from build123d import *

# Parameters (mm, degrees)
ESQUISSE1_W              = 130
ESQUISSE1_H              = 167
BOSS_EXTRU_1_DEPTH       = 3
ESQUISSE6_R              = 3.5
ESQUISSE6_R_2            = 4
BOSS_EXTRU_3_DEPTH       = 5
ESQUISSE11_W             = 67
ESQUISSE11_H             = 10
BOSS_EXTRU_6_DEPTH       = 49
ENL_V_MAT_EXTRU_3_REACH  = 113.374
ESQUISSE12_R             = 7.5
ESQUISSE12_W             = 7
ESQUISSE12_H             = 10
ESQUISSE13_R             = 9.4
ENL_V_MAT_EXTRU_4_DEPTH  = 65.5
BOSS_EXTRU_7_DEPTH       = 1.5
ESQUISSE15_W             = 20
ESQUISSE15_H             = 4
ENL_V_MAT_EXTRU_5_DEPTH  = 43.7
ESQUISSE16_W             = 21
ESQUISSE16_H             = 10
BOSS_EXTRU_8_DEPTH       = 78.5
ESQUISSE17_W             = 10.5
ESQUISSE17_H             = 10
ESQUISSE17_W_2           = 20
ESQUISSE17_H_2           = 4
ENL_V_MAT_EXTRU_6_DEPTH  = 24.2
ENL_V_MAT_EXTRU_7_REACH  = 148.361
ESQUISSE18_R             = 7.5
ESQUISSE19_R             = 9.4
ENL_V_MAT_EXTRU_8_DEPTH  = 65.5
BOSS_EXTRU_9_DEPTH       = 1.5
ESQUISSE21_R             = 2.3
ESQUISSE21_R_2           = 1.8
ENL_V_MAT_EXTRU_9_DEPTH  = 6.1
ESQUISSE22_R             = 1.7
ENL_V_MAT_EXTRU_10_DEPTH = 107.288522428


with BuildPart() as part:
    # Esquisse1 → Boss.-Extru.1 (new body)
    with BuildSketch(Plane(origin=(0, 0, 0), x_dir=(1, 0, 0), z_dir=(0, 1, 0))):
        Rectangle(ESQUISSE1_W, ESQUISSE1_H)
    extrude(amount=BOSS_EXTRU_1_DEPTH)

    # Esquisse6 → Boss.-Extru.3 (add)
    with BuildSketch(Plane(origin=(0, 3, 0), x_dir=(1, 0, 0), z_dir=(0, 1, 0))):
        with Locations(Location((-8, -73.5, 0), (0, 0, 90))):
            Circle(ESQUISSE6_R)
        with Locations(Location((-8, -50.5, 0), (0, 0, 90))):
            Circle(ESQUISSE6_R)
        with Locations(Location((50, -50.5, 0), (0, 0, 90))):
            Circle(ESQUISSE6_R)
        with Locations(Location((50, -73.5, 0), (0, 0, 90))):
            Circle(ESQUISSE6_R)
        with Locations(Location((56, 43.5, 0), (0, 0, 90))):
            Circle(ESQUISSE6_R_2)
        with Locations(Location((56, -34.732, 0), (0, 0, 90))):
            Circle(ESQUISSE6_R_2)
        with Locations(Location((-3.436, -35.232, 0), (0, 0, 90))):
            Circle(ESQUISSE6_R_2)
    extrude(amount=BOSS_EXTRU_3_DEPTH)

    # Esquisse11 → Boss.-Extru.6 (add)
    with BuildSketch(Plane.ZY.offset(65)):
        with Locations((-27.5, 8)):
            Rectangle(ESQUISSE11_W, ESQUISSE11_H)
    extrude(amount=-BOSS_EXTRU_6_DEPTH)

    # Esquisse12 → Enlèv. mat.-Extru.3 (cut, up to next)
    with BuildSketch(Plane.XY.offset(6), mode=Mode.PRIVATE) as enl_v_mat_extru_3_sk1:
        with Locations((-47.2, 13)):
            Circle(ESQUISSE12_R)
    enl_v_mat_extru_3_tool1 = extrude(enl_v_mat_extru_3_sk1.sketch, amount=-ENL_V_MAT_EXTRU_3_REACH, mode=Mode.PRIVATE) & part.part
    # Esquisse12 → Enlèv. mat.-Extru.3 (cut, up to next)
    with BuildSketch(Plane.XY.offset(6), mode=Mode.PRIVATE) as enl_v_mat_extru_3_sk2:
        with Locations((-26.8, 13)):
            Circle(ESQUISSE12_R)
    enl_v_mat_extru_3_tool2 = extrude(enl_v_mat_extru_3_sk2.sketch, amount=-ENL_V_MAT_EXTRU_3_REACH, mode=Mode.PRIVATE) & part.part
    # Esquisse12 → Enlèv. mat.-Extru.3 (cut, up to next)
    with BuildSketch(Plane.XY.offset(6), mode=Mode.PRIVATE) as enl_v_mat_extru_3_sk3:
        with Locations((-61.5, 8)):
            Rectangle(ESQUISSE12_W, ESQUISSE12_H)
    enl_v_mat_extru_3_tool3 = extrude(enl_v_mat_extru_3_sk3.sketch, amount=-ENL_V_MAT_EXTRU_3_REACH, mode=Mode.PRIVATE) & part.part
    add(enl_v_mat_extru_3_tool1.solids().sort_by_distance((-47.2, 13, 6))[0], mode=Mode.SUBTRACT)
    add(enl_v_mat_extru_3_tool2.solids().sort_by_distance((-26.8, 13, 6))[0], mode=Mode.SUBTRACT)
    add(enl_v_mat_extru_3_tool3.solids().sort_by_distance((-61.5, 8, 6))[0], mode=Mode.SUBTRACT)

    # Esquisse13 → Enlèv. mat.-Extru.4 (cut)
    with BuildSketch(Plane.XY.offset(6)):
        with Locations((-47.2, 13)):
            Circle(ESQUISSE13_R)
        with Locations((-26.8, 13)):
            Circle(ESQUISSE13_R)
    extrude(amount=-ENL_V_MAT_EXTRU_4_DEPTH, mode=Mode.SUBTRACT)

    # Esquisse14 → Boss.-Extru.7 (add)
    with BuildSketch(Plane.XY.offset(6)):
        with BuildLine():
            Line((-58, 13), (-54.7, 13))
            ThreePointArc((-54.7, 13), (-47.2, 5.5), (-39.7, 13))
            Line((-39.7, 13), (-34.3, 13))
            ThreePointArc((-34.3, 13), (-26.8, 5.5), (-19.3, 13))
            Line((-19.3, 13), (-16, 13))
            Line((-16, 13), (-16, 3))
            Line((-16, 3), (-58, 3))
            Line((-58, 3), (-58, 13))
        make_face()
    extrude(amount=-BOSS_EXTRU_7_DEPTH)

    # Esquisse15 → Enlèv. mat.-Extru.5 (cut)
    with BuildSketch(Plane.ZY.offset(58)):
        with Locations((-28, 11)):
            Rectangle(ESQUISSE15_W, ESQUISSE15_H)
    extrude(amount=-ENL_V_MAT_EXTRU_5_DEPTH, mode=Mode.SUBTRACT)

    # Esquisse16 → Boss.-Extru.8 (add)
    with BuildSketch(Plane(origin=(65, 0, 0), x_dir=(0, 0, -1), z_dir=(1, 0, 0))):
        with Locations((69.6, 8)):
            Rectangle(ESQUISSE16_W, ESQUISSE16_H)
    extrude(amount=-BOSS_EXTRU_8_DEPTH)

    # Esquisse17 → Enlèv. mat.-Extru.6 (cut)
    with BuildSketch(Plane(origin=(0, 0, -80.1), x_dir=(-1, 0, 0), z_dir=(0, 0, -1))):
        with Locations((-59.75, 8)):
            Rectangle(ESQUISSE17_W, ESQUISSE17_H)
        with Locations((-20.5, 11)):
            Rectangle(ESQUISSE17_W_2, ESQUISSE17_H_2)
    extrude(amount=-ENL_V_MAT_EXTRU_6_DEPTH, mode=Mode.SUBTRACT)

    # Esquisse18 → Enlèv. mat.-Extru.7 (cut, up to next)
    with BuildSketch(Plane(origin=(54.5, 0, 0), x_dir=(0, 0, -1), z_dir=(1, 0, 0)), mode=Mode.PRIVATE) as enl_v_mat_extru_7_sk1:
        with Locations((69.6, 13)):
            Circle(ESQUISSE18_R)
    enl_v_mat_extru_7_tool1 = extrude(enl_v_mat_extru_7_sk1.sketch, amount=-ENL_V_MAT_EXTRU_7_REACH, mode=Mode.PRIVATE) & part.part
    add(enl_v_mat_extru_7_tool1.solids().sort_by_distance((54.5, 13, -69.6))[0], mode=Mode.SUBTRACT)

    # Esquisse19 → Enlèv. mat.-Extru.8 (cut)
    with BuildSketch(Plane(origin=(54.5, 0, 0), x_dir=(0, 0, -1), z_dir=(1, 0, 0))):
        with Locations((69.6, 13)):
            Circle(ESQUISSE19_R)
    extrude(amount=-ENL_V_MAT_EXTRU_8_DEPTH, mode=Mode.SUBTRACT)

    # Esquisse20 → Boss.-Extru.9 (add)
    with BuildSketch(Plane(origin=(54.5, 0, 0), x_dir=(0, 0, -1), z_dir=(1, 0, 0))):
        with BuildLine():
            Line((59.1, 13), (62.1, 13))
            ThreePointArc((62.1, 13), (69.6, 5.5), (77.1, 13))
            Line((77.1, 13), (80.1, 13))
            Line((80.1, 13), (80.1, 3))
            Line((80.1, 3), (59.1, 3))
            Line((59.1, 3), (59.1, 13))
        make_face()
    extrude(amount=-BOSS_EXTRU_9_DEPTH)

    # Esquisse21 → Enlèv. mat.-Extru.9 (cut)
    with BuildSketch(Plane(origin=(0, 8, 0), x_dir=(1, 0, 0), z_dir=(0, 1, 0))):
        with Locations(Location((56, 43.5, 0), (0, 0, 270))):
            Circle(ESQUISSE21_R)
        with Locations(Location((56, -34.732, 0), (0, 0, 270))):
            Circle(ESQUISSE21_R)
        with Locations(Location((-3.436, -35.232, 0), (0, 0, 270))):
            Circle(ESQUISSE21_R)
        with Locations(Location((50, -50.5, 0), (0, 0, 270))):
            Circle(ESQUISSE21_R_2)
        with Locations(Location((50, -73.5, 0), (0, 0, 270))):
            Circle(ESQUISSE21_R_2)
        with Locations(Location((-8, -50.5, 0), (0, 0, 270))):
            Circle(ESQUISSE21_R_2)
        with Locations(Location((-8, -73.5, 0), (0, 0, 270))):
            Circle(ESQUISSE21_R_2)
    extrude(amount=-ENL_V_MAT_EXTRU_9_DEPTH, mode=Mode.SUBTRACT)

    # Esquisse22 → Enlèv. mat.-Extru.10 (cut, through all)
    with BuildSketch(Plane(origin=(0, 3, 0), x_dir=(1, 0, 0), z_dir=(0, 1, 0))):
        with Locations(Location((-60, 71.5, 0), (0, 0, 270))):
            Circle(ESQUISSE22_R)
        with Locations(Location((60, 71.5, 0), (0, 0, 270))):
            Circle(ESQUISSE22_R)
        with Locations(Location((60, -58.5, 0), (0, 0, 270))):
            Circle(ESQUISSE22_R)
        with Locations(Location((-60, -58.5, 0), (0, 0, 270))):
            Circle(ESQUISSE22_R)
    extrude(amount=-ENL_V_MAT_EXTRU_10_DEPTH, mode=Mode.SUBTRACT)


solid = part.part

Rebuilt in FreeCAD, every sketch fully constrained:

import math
import FreeCAD as App
import Part
import Sketcher
from FreeCAD import Vector
Q = App.Units.Quantity


def add_polygon(sketch, points):
    """Adds a closed chain of lines whose ends are joined by coincident constraints."""
    first, n = sketch.GeometryCount, len(points)
    for a, b in zip(points, points[1:] + points[:1]):
        sketch.addGeometry(Part.LineSegment(App.Vector(*a, 0), App.Vector(*b, 0)), False)
    for i in range(n):
        sketch.addConstraint(Sketcher.Constraint("Coincident", first + i, 2, first + (i + 1) % n, 1))

doc = App.newDocument("Part")
body = doc.addObject("PartDesign::Body", "Body")

# Sketch on XZ plane
sketch1 = doc.addObject("Sketcher::SketchObject", "Sketch")
body.addObject(sketch1)
sketch1.AttachmentSupport = (doc.XZ_Plane, [""])
sketch1.MapMode = "FlatFace"
add_polygon(sketch1, [(-65, -83.5), (-65, 83.5), (65, 83.5), (65, -83.5)])  # lines 0-3
sketch1.addConstraint(Sketcher.Constraint("Vertical", 0))
sketch1.addConstraint(Sketcher.Constraint("Horizontal", 1))
sketch1.addConstraint(Sketcher.Constraint("Vertical", 2))
sketch1.addConstraint(Sketcher.Constraint("Horizontal", 3))
sketch1.addConstraint(Sketcher.Constraint("Symmetric", 0, 2, 2, 2, -1, 1))
sketch1.addConstraint(Sketcher.Constraint("DistanceX", 1, 1, 1, 2, Q("130 mm")))
sketch1.addConstraint(Sketcher.Constraint("DistanceY", 0, 1, 0, 2, Q("167 mm")))
pad1 = doc.addObject("PartDesign::Pad", "Pad")
body.addObject(pad1)
pad1.Profile = sketch1
pad1.Length = 3
pad1.Reversed = True

# Sketch on XZ plane
sketch2 = doc.addObject("Sketcher::SketchObject", "Sketch001")
body.addObject(sketch2)
sketch2.AttachmentSupport = (doc.XZ_Plane, [""])
sketch2.MapMode = "FlatFace"
sketch2.AttachmentOffset = App.Placement(Vector(0, 0, -3), App.Rotation())
sketch2.addGeometry(Part.Circle(Vector(-8, 73.5, 0), Vector(0, 0, 1), 3.5), False)
sketch2.addGeometry(Part.Circle(Vector(-8, 50.5, 0), Vector(0, 0, 1), 3.5), False)
sketch2.addGeometry(Part.Circle(Vector(50, 50.5, 0), Vector(0, 0, 1), 3.5), False)
sketch2.addGeometry(Part.Circle(Vector(50, 73.5, 0), Vector(0, 0, 1), 3.5), False)
sketch2.addGeometry(Part.Circle(Vector(56, -43.5, 0), Vector(0, 0, 1), 4), False)
sketch2.addGeometry(Part.Circle(Vector(56, 34.732, 0), Vector(0, 0, 1), 4), False)
sketch2.addGeometry(Part.Circle(Vector(-3.436, 35.232, 0), Vector(0, 0, 1), 4), False)
sketch2.addConstraint(Sketcher.Constraint("Equal", 0, 1))
sketch2.addConstraint(Sketcher.Constraint("Equal", 1, 2))
sketch2.addConstraint(Sketcher.Constraint("Equal", 2, 3))
sketch2.addConstraint(Sketcher.Constraint("Equal", 4, 5))
sketch2.addConstraint(Sketcher.Constraint("Equal", 5, 6))
sketch2.addConstraint(Sketcher.Constraint("Horizontal", 1, 3, 2, 3))
sketch2.addConstraint(Sketcher.Constraint("Horizontal", 0, 3, 3, 3))
sketch2.addConstraint(Sketcher.Constraint("Vertical", 0, 3, 1, 3))
sketch2.addConstraint(Sketcher.Constraint("Vertical", 2, 3, 3, 3))
sketch2.addConstraint(Sketcher.Constraint("Vertical", 4, 3, 5, 3))
sketch2.addConstraint(Sketcher.Constraint("Diameter", 0, Q("7 mm")))
sketch2.addConstraint(Sketcher.Constraint("Diameter", 4, Q("8 mm")))
sketch2.addConstraint(Sketcher.Constraint("DistanceX", 0, 3, -1, 1, Q("8 mm")))
sketch2.addConstraint(Sketcher.Constraint("DistanceX", -1, 1, 2, 3, Q("50 mm")))
sketch2.addConstraint(Sketcher.Constraint("DistanceX", -1, 1, 4, 3, Q("56 mm")))
sketch2.addConstraint(Sketcher.Constraint("DistanceY", 1, 3, 0, 3, Q("23 mm")))
sketch2.addConstraint(Sketcher.Constraint("DistanceY", 4, 3, 2, 3, Q("94 mm")))
sketch2.addConstraint(Sketcher.Constraint("DistanceY", -1, 1, 0, 3, Q("73.5 mm")))
sketch2.addConstraint(Sketcher.Constraint("DistanceY", 5, 3, 6, 3, Q("0.5 mm")))
sketch2.addConstraint(Sketcher.Constraint("DistanceY", -1, 1, 5, 3, Q("34.732 mm")))
sketch2.addConstraint(Sketcher.Constraint("DistanceX", 6, 3, -1, 1, Q("3.436 mm")))
pad2 = doc.addObject("PartDesign::Pad", "Pad001")
body.addObject(pad2)
pad2.Profile = sketch2
pad2.Length = 5
pad2.Reversed = True

# Sketch on YZ plane
sketch3 = doc.addObject("Sketcher::SketchObject", "Sketch002")
body.addObject(sketch3)
sketch3.AttachmentSupport = (doc.YZ_Plane, [""])
sketch3.MapMode = "FlatFace"
sketch3.AttachmentOffset = App.Placement(Vector(0, 0, -65), App.Rotation())
add_polygon(sketch3, [(13, -61), (3, -61), (3, 6), (13, 6)])  # lines 0-3
sketch3.addConstraint(Sketcher.Constraint("Horizontal", 0))
sketch3.addConstraint(Sketcher.Constraint("Vertical", 1))
sketch3.addConstraint(Sketcher.Constraint("Horizontal", 2))
sketch3.addConstraint(Sketcher.Constraint("Vertical", 3))
sketch3.addConstraint(Sketcher.Constraint("DistanceX", 0, 2, 0, 1, Q("10 mm")))
sketch3.addConstraint(Sketcher.Constraint("DistanceY", 1, 1, 1, 2, Q("67 mm")))
sketch3.addConstraint(Sketcher.Constraint("DistanceX", -1, 1, 0, 2, Q("3 mm")))
sketch3.addConstraint(Sketcher.Constraint("DistanceY", 0, 2, -1, 1, Q("61 mm")))
pad3 = doc.addObject("PartDesign::Pad", "Pad002")
body.addObject(pad3)
pad3.Profile = sketch3
pad3.Length = 49

# Sketch on XY plane
sketch4 = doc.addObject("Sketcher::SketchObject", "Sketch003")
body.addObject(sketch4)
sketch4.AttachmentSupport = (doc.XY_Plane, [""])
sketch4.MapMode = "FlatFace"
sketch4.AttachmentOffset = App.Placement(Vector(0, 0, 6), App.Rotation())
sketch4.addGeometry(Part.Circle(Vector(-47.2, 13, 0), Vector(0, 0, 1), 7.5), False)
sketch4.addConstraint(Sketcher.Constraint("Diameter", 0, Q("15 mm")))
sketch4.addConstraint(Sketcher.Constraint("DistanceY", -1, 1, 0, 3, Q("13 mm")))
sketch4.addConstraint(Sketcher.Constraint("DistanceX", 0, 3, -1, 1, Q("47.2 mm")))
pocket1 = doc.addObject("PartDesign::Pocket", "Pocket")
body.addObject(pocket1)
pocket1.Profile = sketch4
pocket1.Type = "UpToFirst"

# Sketch on XY plane
sketch5 = doc.addObject("Sketcher::SketchObject", "Sketch004")
body.addObject(sketch5)
sketch5.AttachmentSupport = (doc.XY_Plane, [""])
sketch5.MapMode = "FlatFace"
sketch5.AttachmentOffset = App.Placement(Vector(0, 0, 6), App.Rotation())
sketch5.addGeometry(Part.Circle(Vector(-26.8, 13, 0), Vector(0, 0, 1), 7.5), False)
sketch5.addConstraint(Sketcher.Constraint("Diameter", 0, Q("15 mm")))
sketch5.addConstraint(Sketcher.Constraint("DistanceY", -1, 1, 0, 3, Q("13 mm")))
sketch5.addConstraint(Sketcher.Constraint("DistanceX", 0, 3, -1, 1, Q("26.8 mm")))
pocket2 = doc.addObject("PartDesign::Pocket", "Pocket001")
body.addObject(pocket2)
pocket2.Profile = sketch5
pocket2.Type = "UpToFirst"

# Sketch on XY plane
sketch6 = doc.addObject("Sketcher::SketchObject", "Sketch005")
body.addObject(sketch6)
sketch6.AttachmentSupport = (doc.XY_Plane, [""])
sketch6.MapMode = "FlatFace"
sketch6.AttachmentOffset = App.Placement(Vector(0, 0, 6), App.Rotation())
add_polygon(sketch6, [(-65, 13), (-65, 3), (-58, 3), (-58, 13)])  # lines 0-3
sketch6.addConstraint(Sketcher.Constraint("Vertical", 0))
sketch6.addConstraint(Sketcher.Constraint("Horizontal", 1))
sketch6.addConstraint(Sketcher.Constraint("Vertical", 2))
sketch6.addConstraint(Sketcher.Constraint("Horizontal", 3))
sketch6.addConstraint(Sketcher.Constraint("DistanceX", 1, 1, 1, 2, Q("7 mm")))
sketch6.addConstraint(Sketcher.Constraint("DistanceY", 0, 2, 0, 1, Q("10 mm")))
sketch6.addConstraint(Sketcher.Constraint("DistanceX", 0, 2, -1, 1, Q("65 mm")))
sketch6.addConstraint(Sketcher.Constraint("DistanceY", -1, 1, 0, 2, Q("3 mm")))
pocket3 = doc.addObject("PartDesign::Pocket", "Pocket002")
body.addObject(pocket3)
pocket3.Profile = sketch6
pocket3.Type = "UpToFirst"

# Sketch on XY plane
sketch7 = doc.addObject("Sketcher::SketchObject", "Sketch006")
body.addObject(sketch7)
sketch7.AttachmentSupport = (doc.XY_Plane, [""])
sketch7.MapMode = "FlatFace"
sketch7.AttachmentOffset = App.Placement(Vector(0, 0, 6), App.Rotation())
sketch7.addGeometry(Part.Circle(Vector(-47.2, 13, 0), Vector(0, 0, 1), 9.4), False)
sketch7.addGeometry(Part.Circle(Vector(-26.8, 13, 0), Vector(0, 0, 1), 9.4), False)
sketch7.addConstraint(Sketcher.Constraint("Equal", 0, 1))
sketch7.addConstraint(Sketcher.Constraint("Horizontal", 0, 3, 1, 3))
sketch7.addConstraint(Sketcher.Constraint("Diameter", 0, Q("18.8 mm")))
sketch7.addConstraint(Sketcher.Constraint("DistanceY", -1, 1, 0, 3, Q("13 mm")))
sketch7.addConstraint(Sketcher.Constraint("DistanceX", 0, 3, -1, 1, Q("47.2 mm")))
sketch7.addConstraint(Sketcher.Constraint("DistanceX", 1, 3, -1, 1, Q("26.8 mm")))
pocket4 = doc.addObject("PartDesign::Pocket", "Pocket003")
body.addObject(pocket4)
pocket4.Profile = sketch7
pocket4.Length = 65.5

# Sketch on XY plane
sketch8 = doc.addObject("Sketcher::SketchObject", "Sketch007")
body.addObject(sketch8)
sketch8.AttachmentSupport = (doc.XY_Plane, [""])
sketch8.MapMode = "FlatFace"
sketch8.AttachmentOffset = App.Placement(Vector(0, 0, 6), App.Rotation())
sketch8.addGeometry(Part.LineSegment(Vector(-54.7, 13, 0), Vector(-58, 13, 0)), False)
sketch8.addGeometry(Part.LineSegment(Vector(-58, 13, 0), Vector(-58, 3, 0)), False)
sketch8.addGeometry(Part.LineSegment(Vector(-58, 3, 0), Vector(-16, 3, 0)), False)
sketch8.addGeometry(Part.LineSegment(Vector(-16, 3, 0), Vector(-16, 13, 0)), False)
sketch8.addGeometry(Part.LineSegment(Vector(-16, 13, 0), Vector(-19.3, 13, 0)), False)
sketch8.addGeometry(Part.ArcOfCircle(Part.Circle(Vector(-26.8, 13, 0), Vector(0, 0, 1), 7.5), math.radians(180), math.radians(360)), False)
sketch8.addGeometry(Part.LineSegment(Vector(-34.3, 13, 0), Vector(-39.7, 13, 0)), False)
sketch8.addGeometry(Part.ArcOfCircle(Part.Circle(Vector(-47.2, 13, 0), Vector(0, 0, 1), 7.5), math.radians(180), math.radians(360)), False)
sketch8.addConstraint(Sketcher.Constraint("Coincident", 0, 2, 1, 1))
sketch8.addConstraint(Sketcher.Constraint("Coincident", 1, 2, 2, 1))
sketch8.addConstraint(Sketcher.Constraint("Coincident", 2, 2, 3, 1))
sketch8.addConstraint(Sketcher.Constraint("Coincident", 3, 2, 4, 1))
sketch8.addConstraint(Sketcher.Constraint("Coincident", 4, 2, 5, 2))
sketch8.addConstraint(Sketcher.Constraint("Coincident", 5, 1, 6, 1))
sketch8.addConstraint(Sketcher.Constraint("Coincident", 6, 2, 7, 2))
sketch8.addConstraint(Sketcher.Constraint("Coincident", 7, 1, 0, 1))
sketch8.addConstraint(Sketcher.Constraint("Horizontal", 0))
sketch8.addConstraint(Sketcher.Constraint("Vertical", 1))
sketch8.addConstraint(Sketcher.Constraint("Horizontal", 2))
sketch8.addConstraint(Sketcher.Constraint("Vertical", 3))
sketch8.addConstraint(Sketcher.Constraint("Horizontal", 4))
sketch8.addConstraint(Sketcher.Constraint("Horizontal", 6))
sketch8.addConstraint(Sketcher.Constraint("Equal", 5, 7))
sketch8.addConstraint(Sketcher.Constraint("Horizontal", 5, 3, 7, 3))
sketch8.addConstraint(Sketcher.Constraint("Horizontal", 7, 3, 0, 2))
sketch8.addConstraint(Sketcher.Constraint("Horizontal", 0, 2, 3, 2))
sketch8.addConstraint(Sketcher.Constraint("Horizontal", 4, 2, 5, 1))
sketch8.addConstraint(Sketcher.Constraint("Equal", 0, 4))
sketch8.addConstraint(Sketcher.Constraint("Radius", 5, Q("7.5 mm")))
sketch8.addConstraint(Sketcher.Constraint("DistanceX", 2, 1, 2, 2, Q("42 mm")))
sketch8.addConstraint(Sketcher.Constraint("DistanceY", 1, 2, 1, 1, Q("10 mm")))
sketch8.addConstraint(Sketcher.Constraint("DistanceX", 0, 2, 0, 1, Q("3.3 mm")))
sketch8.addConstraint(Sketcher.Constraint("DistanceY", -1, 1, 5, 3, Q("13 mm")))
sketch8.addConstraint(Sketcher.Constraint("DistanceX", 0, 2, -1, 1, Q("58 mm")))
pad4 = doc.addObject("PartDesign::Pad", "Pad003")
body.addObject(pad4)
pad4.Profile = sketch8
pad4.Length = 1.5
pad4.Reversed = True

# Sketch on YZ plane
sketch9 = doc.addObject("Sketcher::SketchObject", "Sketch008")
body.addObject(sketch9)
sketch9.AttachmentSupport = (doc.YZ_Plane, [""])
sketch9.MapMode = "FlatFace"
sketch9.AttachmentOffset = App.Placement(Vector(0, 0, -58), App.Rotation())
add_polygon(sketch9, [(13, -38), (9, -38), (9, -18), (13, -18)])  # lines 0-3
sketch9.addConstraint(Sketcher.Constraint("Horizontal", 0))
sketch9.addConstraint(Sketcher.Constraint("Vertical", 1))
sketch9.addConstraint(Sketcher.Constraint("Horizontal", 2))
sketch9.addConstraint(Sketcher.Constraint("Vertical", 3))
sketch9.addConstraint(Sketcher.Constraint("DistanceX", 0, 2, 0, 1, Q("4 mm")))
sketch9.addConstraint(Sketcher.Constraint("DistanceY", 1, 1, 1, 2, Q("20 mm")))
sketch9.addConstraint(Sketcher.Constraint("DistanceX", -1, 1, 0, 2, Q("9 mm")))
sketch9.addConstraint(Sketcher.Constraint("DistanceY", 0, 2, -1, 1, Q("38 mm")))
pocket5 = doc.addObject("PartDesign::Pocket", "Pocket004")
body.addObject(pocket5)
pocket5.Profile = sketch9
pocket5.Length = 43.7
pocket5.Reversed = True

# Sketch on YZ plane
sketch10 = doc.addObject("Sketcher::SketchObject", "Sketch009")
body.addObject(sketch10)
sketch10.AttachmentSupport = (doc.YZ_Plane, [""])
sketch10.MapMode = "FlatFace"
sketch10.AttachmentOffset = App.Placement(Vector(0, 0, 65), App.Rotation())
add_polygon(sketch10, [(13, -59.1), (3, -59.1), (3, -80.1), (13, -80.1)])  # lines 0-3
sketch10.addConstraint(Sketcher.Constraint("Horizontal", 0))
sketch10.addConstraint(Sketcher.Constraint("Vertical", 1))
sketch10.addConstraint(Sketcher.Constraint("Horizontal", 2))
sketch10.addConstraint(Sketcher.Constraint("Vertical", 3))
sketch10.addConstraint(Sketcher.Constraint("DistanceX", 0, 2, 0, 1, Q("10 mm")))
sketch10.addConstraint(Sketcher.Constraint("DistanceY", 1, 2, 1, 1, Q("21 mm")))
sketch10.addConstraint(Sketcher.Constraint("DistanceX", -1, 1, 0, 2, Q("3 mm")))
sketch10.addConstraint(Sketcher.Constraint("DistanceY", 0, 2, -1, 1, Q("59.1 mm")))
pad5 = doc.addObject("PartDesign::Pad", "Pad004")
body.addObject(pad5)
pad5.Profile = sketch10
pad5.Length = 78.5
pad5.Reversed = True

# Sketch on XY plane
sketch11 = doc.addObject("Sketcher::SketchObject", "Sketch010")
body.addObject(sketch11)
sketch11.AttachmentSupport = (doc.XY_Plane, [""])
sketch11.MapMode = "FlatFace"
sketch11.AttachmentOffset = App.Placement(Vector(0, 0, -80.1), App.Rotation())
add_polygon(sketch11, [(65, 13), (65, 3), (54.5, 3), (54.5, 13)])  # lines 0-3
add_polygon(sketch11, [(30.5, 13), (30.5, 9), (10.5, 9), (10.5, 13)])  # lines 4-7
sketch11.addConstraint(Sketcher.Constraint("Vertical", 0))
sketch11.addConstraint(Sketcher.Constraint("Horizontal", 1))
sketch11.addConstraint(Sketcher.Constraint("Vertical", 2))
sketch11.addConstraint(Sketcher.Constraint("Horizontal", 3))
sketch11.addConstraint(Sketcher.Constraint("Vertical", 4))
sketch11.addConstraint(Sketcher.Constraint("Horizontal", 5))
sketch11.addConstraint(Sketcher.Constraint("Vertical", 6))
sketch11.addConstraint(Sketcher.Constraint("Horizontal", 7))
sketch11.addConstraint(Sketcher.Constraint("Horizontal", 3, 2, 6, 2))
sketch11.addConstraint(Sketcher.Constraint("DistanceX", 5, 2, 5, 1, Q("20 mm")))
sketch11.addConstraint(Sketcher.Constraint("DistanceY", 0, 2, 0, 1, Q("10 mm")))
sketch11.addConstraint(Sketcher.Constraint("DistanceY", 4, 2, 4, 1, Q("4 mm")))
sketch11.addConstraint(Sketcher.Constraint("DistanceX", 1, 2, 1, 1, Q("10.5 mm")))
sketch11.addConstraint(Sketcher.Constraint("DistanceX", -1, 1, 0, 2, Q("65 mm")))
sketch11.addConstraint(Sketcher.Constraint("DistanceY", -1, 1, 0, 2, Q("3 mm")))
sketch11.addConstraint(Sketcher.Constraint("DistanceX", 4, 2, 2, 2, Q("24 mm")))
pocket6 = doc.addObject("PartDesign::Pocket", "Pocket005")
body.addObject(pocket6)
pocket6.Profile = sketch11
pocket6.Length = 24.2
pocket6.Reversed = True

# Sketch on YZ plane
sketch12 = doc.addObject("Sketcher::SketchObject", "Sketch011")
body.addObject(sketch12)
sketch12.AttachmentSupport = (doc.YZ_Plane, [""])
sketch12.MapMode = "FlatFace"
sketch12.AttachmentOffset = App.Placement(Vector(0, 0, 54.5), App.Rotation())
sketch12.addGeometry(Part.Circle(Vector(13, -69.6, 0), Vector(0, 0, 1), 7.5), False)
sketch12.addConstraint(Sketcher.Constraint("Diameter", 0, Q("15 mm")))
sketch12.addConstraint(Sketcher.Constraint("DistanceX", -1, 1, 0, 3, Q("13 mm")))
sketch12.addConstraint(Sketcher.Constraint("DistanceY", 0, 3, -1, 1, Q("69.6 mm")))
pocket7 = doc.addObject("PartDesign::Pocket", "Pocket006")
body.addObject(pocket7)
pocket7.Profile = sketch12
pocket7.Length = 68

# Sketch on YZ plane
sketch13 = doc.addObject("Sketcher::SketchObject", "Sketch012")
body.addObject(sketch13)
sketch13.AttachmentSupport = (doc.YZ_Plane, [""])
sketch13.MapMode = "FlatFace"
sketch13.AttachmentOffset = App.Placement(Vector(0, 0, 54.5), App.Rotation())
sketch13.addGeometry(Part.Circle(Vector(13, -69.6, 0), Vector(0, 0, 1), 9.4), False)
sketch13.addConstraint(Sketcher.Constraint("Diameter", 0, Q("18.8 mm")))
sketch13.addConstraint(Sketcher.Constraint("DistanceX", -1, 1, 0, 3, Q("13 mm")))
sketch13.addConstraint(Sketcher.Constraint("DistanceY", 0, 3, -1, 1, Q("69.6 mm")))
pocket8 = doc.addObject("PartDesign::Pocket", "Pocket007")
body.addObject(pocket8)
pocket8.Profile = sketch13
pocket8.Length = 65.5

# Sketch on YZ plane
sketch14 = doc.addObject("Sketcher::SketchObject", "Sketch013")
body.addObject(sketch14)
sketch14.AttachmentSupport = (doc.YZ_Plane, [""])
sketch14.MapMode = "FlatFace"
sketch14.AttachmentOffset = App.Placement(Vector(0, 0, 54.5), App.Rotation())
sketch14.addGeometry(Part.LineSegment(Vector(13, -62.1, 0), Vector(13, -59.1, 0)), False)
sketch14.addGeometry(Part.LineSegment(Vector(13, -59.1, 0), Vector(3, -59.1, 0)), False)
sketch14.addGeometry(Part.LineSegment(Vector(3, -59.1, 0), Vector(3, -80.1, 0)), False)
sketch14.addGeometry(Part.LineSegment(Vector(3, -80.1, 0), Vector(13, -80.1, 0)), False)
sketch14.addGeometry(Part.LineSegment(Vector(13, -80.1, 0), Vector(13, -77.1, 0)), False)
sketch14.addGeometry(Part.ArcOfCircle(Part.Circle(Vector(13, -69.6, 0), Vector(0, 0, 1), 7.5), math.radians(90), math.radians(270)), False)
sketch14.addConstraint(Sketcher.Constraint("Coincident", 0, 2, 1, 1))
sketch14.addConstraint(Sketcher.Constraint("Coincident", 1, 2, 2, 1))
sketch14.addConstraint(Sketcher.Constraint("Coincident", 2, 2, 3, 1))
sketch14.addConstraint(Sketcher.Constraint("Coincident", 3, 2, 4, 1))
sketch14.addConstraint(Sketcher.Constraint("Coincident", 4, 2, 5, 2))
sketch14.addConstraint(Sketcher.Constraint("Coincident", 5, 1, 0, 1))
sketch14.addConstraint(Sketcher.Constraint("Vertical", 0))
sketch14.addConstraint(Sketcher.Constraint("Horizontal", 1))
sketch14.addConstraint(Sketcher.Constraint("Vertical", 2))
sketch14.addConstraint(Sketcher.Constraint("Horizontal", 3))
sketch14.addConstraint(Sketcher.Constraint("Vertical", 4))
sketch14.addConstraint(Sketcher.Constraint("Vertical", 5, 3, 0, 2))
sketch14.addConstraint(Sketcher.Constraint("Vertical", 0, 2, 3, 2))
sketch14.addConstraint(Sketcher.Constraint("Equal", 0, 4))
sketch14.addConstraint(Sketcher.Constraint("Radius", 5, Q("7.5 mm")))
sketch14.addConstraint(Sketcher.Constraint("DistanceX", 1, 2, 1, 1, Q("10 mm")))
sketch14.addConstraint(Sketcher.Constraint("DistanceY", 0, 1, 0, 2, Q("3 mm")))
sketch14.addConstraint(Sketcher.Constraint("DistanceX", -1, 1, 5, 3, Q("13 mm")))
sketch14.addConstraint(Sketcher.Constraint("DistanceY", 5, 3, -1, 1, Q("69.6 mm")))
pad6 = doc.addObject("PartDesign::Pad", "Pad005")
body.addObject(pad6)
pad6.Profile = sketch14
pad6.Length = 1.5
pad6.Reversed = True

# Sketch on XZ plane
sketch15 = doc.addObject("Sketcher::SketchObject", "Sketch014")
body.addObject(sketch15)
sketch15.AttachmentSupport = (doc.XZ_Plane, [""])
sketch15.MapMode = "FlatFace"
sketch15.AttachmentOffset = App.Placement(Vector(0, 0, -8), App.Rotation())
sketch15.addGeometry(Part.Circle(Vector(56, -43.5, 0), Vector(0, 0, 1), 2.3), False)
sketch15.addGeometry(Part.Circle(Vector(56, 34.732, 0), Vector(0, 0, 1), 2.3), False)
sketch15.addGeometry(Part.Circle(Vector(-3.436, 35.232, 0), Vector(0, 0, 1), 2.3), False)
sketch15.addGeometry(Part.Circle(Vector(50, 50.5, 0), Vector(0, 0, 1), 1.8), False)
sketch15.addGeometry(Part.Circle(Vector(50, 73.5, 0), Vector(0, 0, 1), 1.8), False)
sketch15.addGeometry(Part.Circle(Vector(-8, 50.5, 0), Vector(0, 0, 1), 1.8), False)
sketch15.addGeometry(Part.Circle(Vector(-8, 73.5, 0), Vector(0, 0, 1), 1.8), False)
sketch15.addConstraint(Sketcher.Constraint("Equal", 0, 1))
sketch15.addConstraint(Sketcher.Constraint("Equal", 1, 2))
sketch15.addConstraint(Sketcher.Constraint("Equal", 3, 4))
sketch15.addConstraint(Sketcher.Constraint("Equal", 4, 5))
sketch15.addConstraint(Sketcher.Constraint("Equal", 5, 6))
sketch15.addConstraint(Sketcher.Constraint("Horizontal", 3, 3, 5, 3))
sketch15.addConstraint(Sketcher.Constraint("Horizontal", 4, 3, 6, 3))
sketch15.addConstraint(Sketcher.Constraint("Vertical", 0, 3, 1, 3))
sketch15.addConstraint(Sketcher.Constraint("Vertical", 3, 3, 4, 3))
sketch15.addConstraint(Sketcher.Constraint("Vertical", 5, 3, 6, 3))
sketch15.addConstraint(Sketcher.Constraint("Diameter", 0, Q("4.6 mm")))
sketch15.addConstraint(Sketcher.Constraint("Diameter", 3, Q("3.6 mm")))
sketch15.addConstraint(Sketcher.Constraint("DistanceX", -1, 1, 0, 3, Q("56 mm")))
sketch15.addConstraint(Sketcher.Constraint("DistanceX", -1, 1, 3, 3, Q("50 mm")))
sketch15.addConstraint(Sketcher.Constraint("DistanceX", 5, 3, -1, 1, Q("8 mm")))
sketch15.addConstraint(Sketcher.Constraint("DistanceY", 0, 3, 3, 3, Q("94 mm")))
sketch15.addConstraint(Sketcher.Constraint("DistanceY", 3, 3, 4, 3, Q("23 mm")))
sketch15.addConstraint(Sketcher.Constraint("DistanceY", 0, 3, -1, 1, Q("43.5 mm")))
sketch15.addConstraint(Sketcher.Constraint("DistanceY", 1, 3, 2, 3, Q("0.5 mm")))
sketch15.addConstraint(Sketcher.Constraint("DistanceY", -1, 1, 1, 3, Q("34.732 mm")))
sketch15.addConstraint(Sketcher.Constraint("DistanceX", 2, 3, -1, 1, Q("3.436 mm")))
pocket9 = doc.addObject("PartDesign::Pocket", "Pocket008")
body.addObject(pocket9)
pocket9.Profile = sketch15
pocket9.Length = 6.1
pocket9.Reversed = True

# Sketch on XZ plane
sketch16 = doc.addObject("Sketcher::SketchObject", "Sketch015")
body.addObject(sketch16)
sketch16.AttachmentSupport = (doc.XZ_Plane, [""])
sketch16.MapMode = "FlatFace"
sketch16.AttachmentOffset = App.Placement(Vector(0, 0, -3), App.Rotation())
sketch16.addGeometry(Part.Circle(Vector(-60, -71.5, 0), Vector(0, 0, 1), 1.7), False)
sketch16.addGeometry(Part.Circle(Vector(60, -71.5, 0), Vector(0, 0, 1), 1.7), False)
sketch16.addGeometry(Part.Circle(Vector(60, 58.5, 0), Vector(0, 0, 1), 1.7), False)
sketch16.addGeometry(Part.Circle(Vector(-60, 58.5, 0), Vector(0, 0, 1), 1.7), False)
sketch16.addConstraint(Sketcher.Constraint("Equal", 0, 1))
sketch16.addConstraint(Sketcher.Constraint("Equal", 1, 2))
sketch16.addConstraint(Sketcher.Constraint("Equal", 2, 3))
sketch16.addConstraint(Sketcher.Constraint("Symmetric", 0, 3, 1, 3, -2))
sketch16.addConstraint(Sketcher.Constraint("Symmetric", 2, 3, 3, 3, -2))
sketch16.addConstraint(Sketcher.Constraint("Vertical", 1, 3, 2, 3))
sketch16.addConstraint(Sketcher.Constraint("Diameter", 0, Q("3.4 mm")))
sketch16.addConstraint(Sketcher.Constraint("DistanceX", 0, 3, -1, 1, Q("60 mm")))
sketch16.addConstraint(Sketcher.Constraint("DistanceY", 1, 3, 2, 3, Q("130 mm")))
sketch16.addConstraint(Sketcher.Constraint("DistanceY", 0, 3, -1, 1, Q("71.5 mm")))
pocket10 = doc.addObject("PartDesign::Pocket", "Pocket009")
body.addObject(pocket10)
pocket10.Profile = sketch16
pocket10.Type = "ThroughAll"
pocket10.Reversed = True

doc.recompute()
